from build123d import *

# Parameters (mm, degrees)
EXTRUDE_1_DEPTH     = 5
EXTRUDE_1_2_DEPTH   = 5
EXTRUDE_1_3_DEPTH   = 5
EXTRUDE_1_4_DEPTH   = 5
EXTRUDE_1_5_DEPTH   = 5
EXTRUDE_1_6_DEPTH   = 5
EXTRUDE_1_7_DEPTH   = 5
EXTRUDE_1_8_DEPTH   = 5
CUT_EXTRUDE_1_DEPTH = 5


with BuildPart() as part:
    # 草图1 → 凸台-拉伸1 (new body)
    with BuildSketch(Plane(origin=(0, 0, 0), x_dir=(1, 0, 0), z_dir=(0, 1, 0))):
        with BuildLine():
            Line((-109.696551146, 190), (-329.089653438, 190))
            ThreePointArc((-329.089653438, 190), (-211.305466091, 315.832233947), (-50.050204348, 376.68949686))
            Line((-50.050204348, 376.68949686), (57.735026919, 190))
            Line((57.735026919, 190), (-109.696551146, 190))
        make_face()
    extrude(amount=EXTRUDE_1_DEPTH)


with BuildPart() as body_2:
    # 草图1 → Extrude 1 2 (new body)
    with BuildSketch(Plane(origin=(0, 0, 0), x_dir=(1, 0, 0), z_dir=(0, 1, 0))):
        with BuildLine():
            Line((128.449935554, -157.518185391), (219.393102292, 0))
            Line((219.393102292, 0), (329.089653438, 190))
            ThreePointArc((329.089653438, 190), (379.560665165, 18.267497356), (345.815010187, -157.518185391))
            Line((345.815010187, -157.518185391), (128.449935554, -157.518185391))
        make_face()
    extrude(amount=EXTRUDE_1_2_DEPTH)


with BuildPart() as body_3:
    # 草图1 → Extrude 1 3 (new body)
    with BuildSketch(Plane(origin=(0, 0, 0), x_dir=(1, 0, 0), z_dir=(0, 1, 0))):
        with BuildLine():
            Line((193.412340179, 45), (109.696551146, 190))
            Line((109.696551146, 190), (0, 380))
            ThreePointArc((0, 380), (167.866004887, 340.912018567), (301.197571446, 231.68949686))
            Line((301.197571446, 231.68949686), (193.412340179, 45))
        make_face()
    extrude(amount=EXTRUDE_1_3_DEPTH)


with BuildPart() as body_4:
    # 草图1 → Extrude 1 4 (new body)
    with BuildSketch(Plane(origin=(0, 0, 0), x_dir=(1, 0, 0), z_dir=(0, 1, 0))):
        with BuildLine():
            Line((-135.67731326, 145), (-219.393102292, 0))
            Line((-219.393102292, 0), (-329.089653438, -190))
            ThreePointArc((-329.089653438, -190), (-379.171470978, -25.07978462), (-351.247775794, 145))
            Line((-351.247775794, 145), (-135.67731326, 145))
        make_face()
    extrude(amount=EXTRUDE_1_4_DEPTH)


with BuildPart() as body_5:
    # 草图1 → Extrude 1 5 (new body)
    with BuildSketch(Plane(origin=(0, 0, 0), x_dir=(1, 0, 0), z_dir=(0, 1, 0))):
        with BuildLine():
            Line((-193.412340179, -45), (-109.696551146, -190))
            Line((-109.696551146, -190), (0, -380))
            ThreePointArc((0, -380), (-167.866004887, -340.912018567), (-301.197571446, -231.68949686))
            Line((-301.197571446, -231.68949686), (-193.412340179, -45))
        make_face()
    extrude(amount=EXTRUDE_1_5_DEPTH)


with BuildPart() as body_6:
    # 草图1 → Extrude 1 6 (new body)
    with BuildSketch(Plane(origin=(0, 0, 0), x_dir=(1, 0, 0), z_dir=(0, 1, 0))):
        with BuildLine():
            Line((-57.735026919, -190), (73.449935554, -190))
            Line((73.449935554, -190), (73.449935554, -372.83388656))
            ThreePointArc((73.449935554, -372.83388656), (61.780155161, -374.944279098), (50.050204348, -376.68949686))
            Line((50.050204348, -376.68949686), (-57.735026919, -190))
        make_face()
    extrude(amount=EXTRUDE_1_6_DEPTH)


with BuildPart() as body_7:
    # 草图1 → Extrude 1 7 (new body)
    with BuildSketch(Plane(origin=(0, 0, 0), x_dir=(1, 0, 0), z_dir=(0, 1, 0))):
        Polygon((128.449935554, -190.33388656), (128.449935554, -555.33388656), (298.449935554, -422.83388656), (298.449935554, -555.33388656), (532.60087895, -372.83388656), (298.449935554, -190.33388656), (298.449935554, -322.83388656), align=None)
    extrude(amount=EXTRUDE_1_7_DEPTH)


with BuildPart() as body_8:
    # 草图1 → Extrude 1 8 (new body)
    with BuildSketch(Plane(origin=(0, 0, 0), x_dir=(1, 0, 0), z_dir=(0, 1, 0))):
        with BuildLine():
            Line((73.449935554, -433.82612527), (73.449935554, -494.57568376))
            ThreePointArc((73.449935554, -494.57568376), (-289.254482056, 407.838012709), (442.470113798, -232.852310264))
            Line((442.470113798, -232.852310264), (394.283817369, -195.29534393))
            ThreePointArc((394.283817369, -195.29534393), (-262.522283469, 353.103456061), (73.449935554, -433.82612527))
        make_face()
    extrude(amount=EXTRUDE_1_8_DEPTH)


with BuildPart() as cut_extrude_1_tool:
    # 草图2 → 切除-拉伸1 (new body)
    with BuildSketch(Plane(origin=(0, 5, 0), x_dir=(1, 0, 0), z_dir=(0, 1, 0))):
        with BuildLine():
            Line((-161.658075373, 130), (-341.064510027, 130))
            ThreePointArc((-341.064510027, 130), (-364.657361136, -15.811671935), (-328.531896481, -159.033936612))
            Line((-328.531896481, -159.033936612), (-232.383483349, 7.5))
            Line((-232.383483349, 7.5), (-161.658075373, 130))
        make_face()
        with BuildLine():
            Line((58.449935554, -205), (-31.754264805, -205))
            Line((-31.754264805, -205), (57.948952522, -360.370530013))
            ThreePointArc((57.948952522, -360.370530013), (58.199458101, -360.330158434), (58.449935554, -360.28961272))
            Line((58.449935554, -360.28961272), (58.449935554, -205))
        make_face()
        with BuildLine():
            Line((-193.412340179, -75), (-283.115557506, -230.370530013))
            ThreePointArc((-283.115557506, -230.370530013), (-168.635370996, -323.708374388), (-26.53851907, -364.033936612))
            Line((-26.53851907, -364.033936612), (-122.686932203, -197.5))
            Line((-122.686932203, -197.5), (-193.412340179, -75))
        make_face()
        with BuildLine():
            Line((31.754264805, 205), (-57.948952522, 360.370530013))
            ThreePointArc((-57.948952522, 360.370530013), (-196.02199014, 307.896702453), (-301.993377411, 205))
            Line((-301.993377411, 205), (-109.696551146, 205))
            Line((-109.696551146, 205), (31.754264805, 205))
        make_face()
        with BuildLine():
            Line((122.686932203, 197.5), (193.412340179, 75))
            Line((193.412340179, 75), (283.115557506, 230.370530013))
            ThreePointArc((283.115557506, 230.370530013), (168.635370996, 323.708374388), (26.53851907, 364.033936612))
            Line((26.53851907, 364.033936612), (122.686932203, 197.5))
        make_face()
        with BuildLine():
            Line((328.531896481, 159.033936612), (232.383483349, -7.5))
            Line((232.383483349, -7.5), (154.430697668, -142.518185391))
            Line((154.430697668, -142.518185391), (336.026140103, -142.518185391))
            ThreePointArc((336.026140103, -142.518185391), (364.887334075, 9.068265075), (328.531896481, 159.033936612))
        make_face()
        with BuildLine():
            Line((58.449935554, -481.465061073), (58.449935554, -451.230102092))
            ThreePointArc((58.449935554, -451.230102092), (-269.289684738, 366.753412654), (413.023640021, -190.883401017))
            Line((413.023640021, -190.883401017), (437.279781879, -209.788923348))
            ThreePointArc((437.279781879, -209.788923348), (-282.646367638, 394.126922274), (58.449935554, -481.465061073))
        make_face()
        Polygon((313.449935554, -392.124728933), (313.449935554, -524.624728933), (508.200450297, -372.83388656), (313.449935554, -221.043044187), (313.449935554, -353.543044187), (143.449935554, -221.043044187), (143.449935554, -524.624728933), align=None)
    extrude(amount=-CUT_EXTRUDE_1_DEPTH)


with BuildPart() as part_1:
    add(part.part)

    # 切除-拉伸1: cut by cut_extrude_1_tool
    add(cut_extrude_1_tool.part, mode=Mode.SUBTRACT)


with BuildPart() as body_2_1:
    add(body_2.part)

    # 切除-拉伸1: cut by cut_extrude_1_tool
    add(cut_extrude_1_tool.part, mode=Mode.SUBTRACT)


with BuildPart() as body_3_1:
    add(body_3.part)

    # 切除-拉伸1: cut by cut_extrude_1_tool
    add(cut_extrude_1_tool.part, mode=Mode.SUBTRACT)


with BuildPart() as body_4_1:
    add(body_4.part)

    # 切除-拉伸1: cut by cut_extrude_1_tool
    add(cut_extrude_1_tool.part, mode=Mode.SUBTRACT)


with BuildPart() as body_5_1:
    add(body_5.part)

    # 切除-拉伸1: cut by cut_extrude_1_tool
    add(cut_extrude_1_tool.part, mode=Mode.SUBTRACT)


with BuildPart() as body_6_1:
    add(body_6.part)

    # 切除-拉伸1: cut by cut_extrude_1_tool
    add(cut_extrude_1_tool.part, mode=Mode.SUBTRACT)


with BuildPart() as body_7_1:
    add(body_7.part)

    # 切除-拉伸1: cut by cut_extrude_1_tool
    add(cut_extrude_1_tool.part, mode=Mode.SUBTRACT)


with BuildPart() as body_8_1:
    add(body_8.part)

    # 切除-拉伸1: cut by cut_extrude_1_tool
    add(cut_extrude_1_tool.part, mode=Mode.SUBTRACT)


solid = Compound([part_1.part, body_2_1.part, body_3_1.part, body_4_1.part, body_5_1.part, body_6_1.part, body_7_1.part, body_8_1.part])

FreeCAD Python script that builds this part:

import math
import FreeCAD as App
import Part
import Sketcher

V = App.Vector
Q = App.Units.Quantity


def add_polygon(sketch, points):
    """Adds a closed chain of lines whose ends are joined by coincident constraints."""
    first, n = sketch.GeometryCount, len(points)
    for a, b in zip(points, points[1:] + points[:1]):
        sketch.addGeometry(Part.LineSegment(App.Vector(*a, 0), App.Vector(*b, 0)), False)
    for i in range(n):
        sketch.addConstraint(Sketcher.Constraint("Coincident", first + i, 2, first + (i + 1) % n, 1))

doc = App.newDocument("Part")
body = doc.addObject("PartDesign::Body", "Body")

# Sketch on XZ plane
sketch1 = body.newObject("Sketcher::SketchObject", "Sketch")
sketch1.AttachmentSupport = (doc.getObject("XZ_Plane"), [""])
sketch1.MapMode = "FlatFace"
sketch1.addGeometry([
    Part.ArcOfCircle(Part.Circle(V(0, 0, 0), V(0, 0, 1), 380), math.radians(-150), math.radians(-98)),
    Part.LineSegment(V(-329, -190, 0), V(58, -190, 0)),
    Part.LineSegment(V(58, -190, 0), V(-50, -377, 0)),
], False)
sketch1.addConstraint([
    Sketcher.Constraint("Coincident", 0, 1, 1, 1),
    Sketcher.Constraint("Coincident", 1, 2, 2, 1),
    Sketcher.Constraint("Coincident", 2, 2, 0, 2),
    Sketcher.Constraint("Horizontal", 1),
    Sketcher.Constraint("Coincident", 0, 3, -1, 1),
    Sketcher.Constraint("Radius", 0, 380.0),
    Sketcher.Constraint("Angle", 2, Q("-120 deg")),
    Sketcher.Constraint("DistanceY", 1, 2, -1, 1, 190.0),
    Sketcher.Constraint("DistanceX", 1, 1, 1, 2, 386.82468),
])
pad1 = body.newObject("PartDesign::Pad", "Pad")
pad1.Profile = sketch1
pad1.Length = 5
pad1.Reversed = True
body2 = doc.addObject("PartDesign::Body", "Body001")

# Sketch on XZ plane
sketch2 = body2.newObject("Sketcher::SketchObject", "Sketch001")
sketch2.AttachmentSupport = (doc.getObject("XZ_Plane001"), [""])
sketch2.MapMode = "FlatFace"
sketch2.addGeometry([
    Part.LineSegment(V(219, 0, 0), V(128, 158, 0)),
    Part.LineSegment(V(128, 158, 0), V(346, 158, 0)),
    Part.ArcOfCircle(Part.Circle(V(0, 0, 0), V(0, 0, 1), 380), math.radians(-30), math.radians(24)),
    Part.LineSegment(V(329, -190, 0), V(219, 0, 0)),
], False)
sketch2.addConstraint([
    Sketcher.Constraint("Coincident", 0, 2, 1, 1),
    Sketcher.Constraint("Coincident", 1, 2, 2, 2),
    Sketcher.Constraint("Coincident", 2, 1, 3, 1),
    Sketcher.Constraint("Coincident", 3, 2, 0, 1),
    Sketcher.Constraint("Horizontal", 1),
    Sketcher.Constraint("Coincident", 2, 3, -1, 1),
    Sketcher.Constraint("PointOnObject", 3, 2, -1),
    Sketcher.Constraint("Parallel", 0, 3),
    Sketcher.Constraint("Radius", 2, 380.0),
    Sketcher.Constraint("Angle", 0, Q("120 deg")),
    Sketcher.Constraint("DistanceX", 1, 1, 1, 2, 217.365075),
    Sketcher.Constraint("DistanceX", -1, 1, 1, 2, 345.81501),
])
pad2 = body2.newObject("PartDesign::Pad", "Pad001")
pad2.Profile = sketch2
pad2.Length = 5
pad2.Reversed = True
body3 = doc.addObject("PartDesign::Body", "Body002")

# Sketch on XZ plane
sketch3 = body3.newObject("Sketcher::SketchObject", "Sketch002")
sketch3.AttachmentSupport = (doc.getObject("XZ_Plane002"), [""])
sketch3.MapMode = "FlatFace"
sketch3.addGeometry([
    Part.LineSegment(V(110, -190, 0), V(193, -45, 0)),
    Part.LineSegment(V(193, -45, 0), V(301, -232, 0)),
    Part.ArcOfCircle(Part.Circle(V(0, 0, 0), V(0, 0, 1), 380), math.radians(-90), math.radians(-38)),
    Part.LineSegment(V(0, -380, 0), V(110, -190, 0)),
], False)
sketch3.addConstraint([
    Sketcher.Constraint("Coincident", 0, 2, 1, 1),
    Sketcher.Constraint("Coincident", 1, 2, 2, 2),
    Sketcher.Constraint("Coincident", 2, 1, 3, 1),
    Sketcher.Constraint("Coincident", 3, 2, 0, 1),
    Sketcher.Constraint("Coincident", 2, 3, -1, 1),
    Sketcher.Constraint("PointOnObject", 2, 1, -2),
    Sketcher.Constraint("Parallel", 0, 3),
    Sketcher.Constraint("Radius", 2, 380.0),
    Sketcher.Constraint("Angle", 0, Q("60 deg")),
    Sketcher.Constraint("Angle", 1, Q("-60 deg")),
    Sketcher.Constraint("DistanceY", 0, 2, -1, 1, 45.0),
    Sketcher.Constraint("DistanceY", 3, 2, -1, 1, 190.0),
])
pad3 = body3.newObject("PartDesign::Pad", "Pad002")
pad3.Profile = sketch3
pad3.Length = 5
pad3.Reversed = True
body4 = doc.addObject("PartDesign::Body", "Body003")

# Sketch on XZ plane
sketch4 = body4.newObject("Sketcher::SketchObject", "Sketch003")
sketch4.AttachmentSupport = (doc.getObject("XZ_Plane003"), [""])
sketch4.MapMode = "FlatFace"
sketch4.addGeometry([
    Part.LineSegment(V(-219, 0, 0), V(-136, -145, 0)),
    Part.LineSegment(V(-136, -145, 0), V(-351, -145, 0)),
    Part.ArcOfCircle(Part.Circle(V(0, 0, 0), V(0, 0, 1), 380), math.radians(150), math.radians(202)),
    Part.LineSegment(V(-329, 190, 0), V(-219, 0, 0)),
], False)
sketch4.addConstraint([
    Sketcher.Constraint("Coincident", 0, 2, 1, 1),
    Sketcher.Constraint("Coincident", 1, 2, 2, 2),
    Sketcher.Constraint("Coincident", 2, 1, 3, 1),
    Sketcher.Constraint("Coincident", 3, 2, 0, 1),
    Sketcher.Constraint("Horizontal", 1),
    Sketcher.Constraint("Coincident", 2, 3, -1, 1),
    Sketcher.Constraint("PointOnObject", 3, 2, -1),
    Sketcher.Constraint("Parallel", 0, 3),
    Sketcher.Constraint("Radius", 2, 380.0),
    Sketcher.Constraint("Angle", 0, Q("-60 deg")),
    Sketcher.Constraint("DistanceY", 0, 2, -1, 1, 145.0),
    Sketcher.Constraint("DistanceX", 1, 2, 1, 1, 215.570463),
])
pad4 = body4.newObject("PartDesign::Pad", "Pad003")
pad4.Profile = sketch4
pad4.Length = 5
pad4.Reversed = True
body5 = doc.addObject("PartDesign::Body", "Body004")

# Sketch on XZ plane
sketch5 = body5.newObject("Sketcher::SketchObject", "Sketch004")
sketch5.AttachmentSupport = (doc.getObject("XZ_Plane004"), [""])
sketch5.MapMode = "FlatFace"
sketch5.addGeometry([
    Part.LineSegment(V(-110, 190, 0), V(-193, 45, 0)),
    Part.LineSegment(V(-193, 45, 0), V(-301, 232, 0)),
    Part.ArcOfCircle(Part.Circle(V(0, 0, 0), V(0, 0, 1), 380), math.radians(90), math.radians(142)),
    Part.LineSegment(V(0, 380, 0), V(-110, 190, 0)),
], False)
sketch5.addConstraint([
    Sketcher.Constraint("Coincident", 0, 2, 1, 1),
    Sketcher.Constraint("Coincident", 1, 2, 2, 2),
    Sketcher.Constraint("Coincident", 2, 1, 3, 1),
    Sketcher.Constraint("Coincident", 3, 2, 0, 1),
    Sketcher.Constraint("Coincident", 2, 3, -1, 1),
    Sketcher.Constraint("PointOnObject", 2, 1, -2),
    Sketcher.Constraint("Parallel", 0, 3),
    Sketcher.Constraint("Radius", 2, 380.0),
    Sketcher.Constraint("Angle", 0, Q("-120 deg")),
    Sketcher.Constraint("Angle", 1, Q("120 deg")),
    Sketcher.Constraint("DistanceY", -1, 1, 0, 2, 45.0),
    Sketcher.Constraint("DistanceY", -1, 1, 3, 2, 190.0),
])
pad5 = body5.newObject("PartDesign::Pad", "Pad004")
pad5.Profile = sketch5
pad5.Length = 5
pad5.Reversed = True
body6 = doc.addObject("PartDesign::Body", "Body005")

# Sketch on XZ plane
sketch6 = body6.newObject("Sketcher::SketchObject", "Sketch005")
sketch6.AttachmentSupport = (doc.getObject("XZ_Plane005"), [""])
sketch6.MapMode = "FlatFace"
sketch6.addGeometry([
    Part.LineSegment(V(73, 190, 0), V(-58, 190, 0)),
    Part.LineSegment(V(-58, 190, 0), V(50, 377, 0)),
    Part.ArcOfCircle(Part.Circle(V(0, 0, 0), V(0, 0, 1), 380), math.radians(78.86), math.radians(82.43)),
    Part.LineSegment(V(73, 373, 0), V(73, 190, 0)),
], False)
sketch6.addConstraint([
    Sketcher.Constraint("Coincident", 0, 2, 1, 1),
    Sketcher.Constraint("Coincident", 1, 2, 2, 2),
    Sketcher.Constraint("Coincident", 2, 1, 3, 1),
    Sketcher.Constraint("Coincident", 3, 2, 0, 1),
    Sketcher.Constraint("Horizontal", 0),
    Sketcher.Constraint("Vertical", 3),
    Sketcher.Constraint("Coincident", 2, 3, -1, 1),
    Sketcher.Constraint("Radius", 2, 380.0),
    Sketcher.Constraint("Angle", 1, Q("60 deg")),
    Sketcher.Constraint("DistanceY", -1, 1, 0, 2, 190.0),
    Sketcher.Constraint("DistanceX", 0, 2, 0, 1, 131.184962),
    Sketcher.Constraint("DistanceY", 3, 2, 3, 1, 182.833887),
])
pad6 = body6.newObject("PartDesign::Pad", "Pad005")
pad6.Profile = sketch6
pad6.Length = 5
pad6.Reversed = True
body7 = doc.addObject("PartDesign::Body", "Body006")

# Sketch on XZ plane
sketch7 = body7.newObject("Sketcher::SketchObject", "Sketch006")
sketch7.AttachmentSupport = (doc.getObject("XZ_Plane006"), [""])
sketch7.MapMode = "FlatFace"
add_polygon(sketch7, [(128, 190), (128, 555), (298, 423), (298, 555), (533, 373), (298, 190), (298, 323)])  # lines 0-6
sketch7.addConstraint([
    Sketcher.Constraint("Vertical", 0),
    Sketcher.Constraint("Vertical", 2),
    Sketcher.Constraint("Vertical", 5),
    Sketcher.Constraint("Parallel", 1, 3),
    Sketcher.Constraint("Parallel", 4, 6),
    Sketcher.Constraint("Horizontal", 0, 2, 2, 2),
    Sketcher.Constraint("Horizontal", 4, 2, 6, 2),
    Sketcher.Constraint("Vertical", 2, 2, 4, 2),
    Sketcher.Constraint("Equal", 2, 5),
    Sketcher.Constraint("DistanceY", 0, 1, 0, 2, 365.0),
    Sketcher.Constraint("DistanceY", 2, 1, 2, 2, 132.5),
    Sketcher.Constraint("DistanceX", 0, 2, 1, 2, 170.0),
    Sketcher.Constraint("DistanceX", -1, 1, 3, 2, 532.600879),
    Sketcher.Constraint("DistanceY", -1, 1, 0, 2, 555.333887),
])
pad7 = body7.newObject("PartDesign::Pad", "Pad006")
pad7.Profile = sketch7
pad7.Length = 5
pad7.Reversed = True
body8 = doc.addObject("PartDesign::Body", "Body007")

# Sketch on XZ plane
sketch8 = body8.newObject("Sketcher::SketchObject", "Sketch007")
sketch8.AttachmentSupport = (doc.getObject("XZ_Plane007"), [""])
sketch8.MapMode = "FlatFace"
sketch8.addGeometry([
    Part.LineSegment(V(73.449936, 494.575684, 0), V(73.449936, 433.826125, 0)),
    Part.ArcOfCircle(Part.Circle(V(0, 0, 0), V(0, 0, 1), 440), math.radians(80.390532), math.radians(386.349981)),
    Part.LineSegment(V(394.283817, 195.295344, 0), V(442.470114, 232.85231, 0)),
    Part.ArcOfCircle(Part.Circle(V(0, 0, 0), V(0, 0, 1), 500), math.radians(81.552688), math.radians(387.755833)),
], False)
sketch8.addConstraint([
    Sketcher.Constraint("Coincident", 0, 2, 1, 1),
    Sketcher.Constraint("Coincident", 1, 2, 2, 1),
    Sketcher.Constraint("Coincident", 2, 2, 3, 2),
    Sketcher.Constraint("Coincident", 3, 1, 0, 1),
    Sketcher.Constraint("Vertical", 0),
    Sketcher.Constraint("Coincident", 1, 3, -1, 1),
    Sketcher.Constraint("Coincident", 3, 3, -1, 1),
    Sketcher.Constraint("Radius", 1, 440.0),
    Sketcher.Constraint("Radius", 3, 500.0),
    Sketcher.Constraint("DistanceY", 0, 2, 0, 1, 60.749558),
    Sketcher.Constraint("Distance", 2, 61.093738),
    Sketcher.Constraint("DistanceY", -1, 1, 2, 2, 232.85231),
])
pad8 = body8.newObject("PartDesign::Pad", "Pad007")
pad8.Profile = sketch8
pad8.Length = 5
pad8.Reversed = True
body9 = doc.addObject("PartDesign::Body", "Body008")
body9.AllowCompound = True

# Sketch on XZ plane
sketch9 = body9.newObject("Sketcher::SketchObject", "Sketch008")
sketch9.AttachmentSupport = (doc.getObject("XZ_Plane008"), [""])
sketch9.MapMode = "FlatFace"
sketch9.AttachmentOffset = App.Placement(V(0, 0, -5), App.Rotation())
sketch9.addGeometry(Part.LineSegment(V(-161.7, -130, 0), V(-341.1, -130, 0)), False)  # 0
sketch9.addGeometry(Part.ArcOfCircle(Part.Circle(V(0, 0, 0), V(0, 0, 1), 365), math.radians(154), math.radians(201)), False)  # 1
sketch9.addGeometry(Part.LineSegment(V(-328.5, 159, 0), V(-232.4, -7.5, 0)), False)  # 2
sketch9.addGeometry(Part.LineSegment(V(-232.4, -7.5, 0), V(-161.7, -130, 0)), False)  # 3
sketch9.addGeometry(Part.LineSegment(V(58.4, 205, 0), V(-31.8, 205, 0)), False)  # 4
sketch9.addGeometry(Part.LineSegment(V(-31.8, 205, 0), V(57.9, 360.4, 0)), False)  # 5
sketch9.addGeometry(Part.ArcOfCircle(Part.Circle(V(0, 0, 0), V(0, 0, 1), 365), math.radians(80.79), math.radians(80.86)), False)  # 6
sketch9.addGeometry(Part.LineSegment(V(58.4, 360.3, 0), V(58.4, 205, 0)), False)  # 7
sketch9.addGeometry(Part.LineSegment(V(-193.4, 75, 0), V(-283.1, 230.4, 0)), False)  # 8
sketch9.addGeometry(Part.ArcOfCircle(Part.Circle(V(0, 0, 0), V(0, 0, 1), 365), math.radians(94), math.radians(141)), False)  # 9
sketch9.addGeometry(Part.LineSegment(V(-26.5, 364, 0), V(-122.7, 197.5, 0)), False)  # 10
sketch9.addGeometry(Part.LineSegment(V(-122.7, 197.5, 0), V(-193.4, 75, 0)), False)  # 11
sketch9.addGeometry(Part.LineSegment(V(31.8, -205, 0), V(-57.9, -360.4, 0)), False)  # 12
sketch9.addGeometry(Part.ArcOfCircle(Part.Circle(V(0, 0, 0), V(0, 0, 1), 365), math.radians(-146), math.radians(-99)), False)  # 13
sketch9.addGeometry(Part.LineSegment(V(-302, -205, 0), V(31.8, -205, 0)), False)  # 14
sketch9.addGeometry(Part.LineSegment(V(122.7, -197.5, 0), V(193.4, -75, 0)), False)  # 15
sketch9.addGeometry(Part.LineSegment(V(193.4, -75, 0), V(283.1, -230.4, 0)), False)  # 16
sketch9.addGeometry(Part.ArcOfCircle(Part.Circle(V(0, 0, 0), V(0, 0, 1), 365), math.radians(-86), math.radians(-39)), False)  # 17
sketch9.addGeometry(Part.LineSegment(V(26.5, -364, 0), V(122.7, -197.5, 0)), False)  # 18
sketch9.addGeometry(Part.LineSegment(V(328.5, -159, 0), V(154.4, 142.5, 0)), False)  # 19
sketch9.addGeometry(Part.LineSegment(V(154.4, 142.5, 0), V(336, 142.5, 0)), False)  # 20
sketch9.addGeometry(Part.ArcOfCircle(Part.Circle(V(0, 0, 0), V(0, 0, 1), 365), math.radians(-26), math.radians(23)), False)  # 21
sketch9.addGeometry(Part.LineSegment(V(58.4, 481.5, 0), V(58.4, 451.2, 0)), False)  # 22
sketch9.addGeometry(Part.ArcOfCircle(Part.Circle(V(0, 0, 0), V(0, 0, 1), 455), math.radians(83), math.radians(385)), False)  # 23
sketch9.addGeometry(Part.LineSegment(V(413, 190.9, 0), V(437.3, 209.8, 0)), False)  # 24
sketch9.addGeometry(Part.ArcOfCircle(Part.Circle(V(0, 0, 0), V(0, 0, 1), 485), math.radians(83), math.radians(386)), False)  # 25
add_polygon(sketch9, [(313.4, 392.1), (313.4, 524.6), (508.2, 372.8), (313.4, 221), (313.4, 353.5), (143.4, 221), (143.4, 524.6)])  # lines 26-32
sketch9.addConstraint([
    Sketcher.Constraint("Coincident", 0, 2, 1, 2),
    Sketcher.Constraint("Coincident", 1, 1, 2, 1),
    Sketcher.Constraint("Coincident", 2, 2, 3, 1),
    Sketcher.Constraint("Coincident", 3, 2, 0, 1),
    Sketcher.Constraint("Coincident", 4, 2, 5, 1),
    Sketcher.Constraint("Coincident", 5, 2, 6, 2),
    Sketcher.Constraint("Coincident", 6, 1, 7, 1),
    Sketcher.Constraint("Coincident", 7, 2, 4, 1),
    Sketcher.Constraint("Coincident", 8, 2, 9, 2),
    Sketcher.Constraint("Coincident", 9, 1, 10, 1),
    Sketcher.Constraint("Coincident", 10, 2, 11, 1),
    Sketcher.Constraint("Coincident", 11, 2, 8, 1),
    Sketcher.Constraint("Coincident", 12, 2, 13, 2),
    Sketcher.Constraint("Coincident", 13, 1, 14, 1),
    Sketcher.Constraint("Coincident", 14, 2, 12, 1),
    Sketcher.Constraint("Coincident", 15, 2, 16, 1),
    Sketcher.Constraint("Coincident", 16, 2, 17, 2),
    Sketcher.Constraint("Coincident", 17, 1, 18, 1),
    Sketcher.Constraint("Coincident", 18, 2, 15, 1),
    Sketcher.Constraint("Coincident", 19, 2, 20, 1),
    Sketcher.Constraint("Coincident", 20, 2, 21, 2),
    Sketcher.Constraint("Coincident", 21, 1, 19, 1),
    Sketcher.Constraint("Coincident", 22, 2, 23, 1),
    Sketcher.Constraint("Coincident", 23, 2, 24, 1),
    Sketcher.Constraint("Coincident", 24, 2, 25, 2),
    Sketcher.Constraint("Coincident", 25, 1, 22, 1),
    Sketcher.Constraint("Horizontal", 0),
    Sketcher.Constraint("Horizontal", 4),
    Sketcher.Constraint("Vertical", 7),
    Sketcher.Constraint("Horizontal", 14),
    Sketcher.Constraint("Horizontal", 20),
    Sketcher.Constraint("Vertical", 22),
    Sketcher.Constraint("Vertical", 26),
    Sketcher.Constraint("Vertical", 29),
    Sketcher.Constraint("Vertical", 31),
    Sketcher.Constraint("Coincident", 1, 3, -1, 1),
    Sketcher.Constraint("Coincident", 9, 3, -1, 1),
    Sketcher.Constraint("Coincident", 13, 3, -1, 1),
    Sketcher.Constraint("Coincident", 17, 3, -1, 1),
    Sketcher.Constraint("Coincident", 21, 3, -1, 1),
    Sketcher.Constraint("Coincident", 23, 3, -1, 1),
    Sketcher.Constraint("Coincident", 25, 3, -1, 1),
    Sketcher.Constraint("Equal", 1, 9),
    Sketcher.Constraint("Equal", 9, 13),
    Sketcher.Constraint("Equal", 13, 17),
    Sketcher.Constraint("Equal", 17, 21),
    Sketcher.Constraint("Symmetric", 5, 2, 12, 2, -1, 1),
    Sketcher.Constraint("Symmetric", 4, 2, 14, 2, -1, 1),
    Sketcher.Constraint("Symmetric", 11, 2, 15, 2, -1, 1),
    Sketcher.Constraint("Symmetric", 10, 2, 18, 2, -1, 1),
    Sketcher.Constraint("Parallel", 2, 3),
    Sketcher.Constraint("Parallel", 3, 8),
    Sketcher.Constraint("Parallel", 5, 10),
    Sketcher.Constraint("Parallel", 10, 11),
    Sketcher.Constraint("Parallel", 8, 16),
    Sketcher.Constraint("Parallel", 15, 18),
    Sketcher.Constraint("Parallel", 16, 19),
    Sketcher.Constraint("Parallel", 24, 28),
    Sketcher.Constraint("Parallel", 28, 30),
    Sketcher.Constraint("Parallel", 27, 32),
    Sketcher.Constraint("Horizontal", 28, 2, 30, 2),
    Sketcher.Constraint("Horizontal", 26, 2, 31, 2),
    Sketcher.Constraint("Vertical", 7, 2, 22, 2),
    Sketcher.Constraint("Vertical", 26, 2, 28, 2),
    Sketcher.Constraint("Equal", 26, 29),
    Sketcher.Constraint("Equal", 5, 8),
    Sketcher.Constraint("Equal", 2, 10),
    Sketcher.Constraint("Equal", 3, 11),
    Sketcher.Constraint("Radius", 1, 365.0),
    Sketcher.Constraint("Radius", 23, 455.0),
    Sketcher.Constraint("Radius", 25, 485.0),
    Sketcher.Constraint("Angle", 2, Q("-60 deg")),
    Sketcher.Constraint("Angle", 5, Q("60 deg")),
    Sketcher.Constraint("DistanceY", 26, 1, 26, 2, 132.5),
    Sketcher.Constraint("DistanceY", 0, 2, -1, 1, 130.0),
    Sketcher.Constraint("DistanceY", -1, 1, 4, 2, 205.0),
    Sketcher.Constraint("DistanceY", -1, 1, 11, 2, 75.0),
    Sketcher.Constraint("DistanceX", 22, 2, 26, 2, 255.0),
    Sketcher.Constraint("DistanceX", 7, 2, 30, 2, 85.0),
    Sketcher.Constraint("DistanceY", 2, 2, -1, 1, 7.5),
    Sketcher.Constraint("Radius", 6, 364.999429),
    Sketcher.Constraint("DistanceX", 4, 2, 4, 1, 90.2042),
    Sketcher.Constraint("DistanceX", 15, 2, 20, 2, 142.6138),
    Sketcher.Constraint("DistanceY", 5, 2, 26, 2, 164.254199),
    Sketcher.Constraint("DistanceY", 20, 2, 27, 2, 230.315701),
    Sketcher.Constraint("Distance", 27, 246.917441),
    Sketcher.Constraint("DistanceX", 20, 1, 20, 2, 181.595442),
    Sketcher.Constraint("DistanceX", -1, 1, 24, 2, 437.279782),
    Sketcher.Constraint("DistanceX", 6, 3, 5, 2, 57.948862),
])
pad9 = body9.newObject("PartDesign::Pad", "Pad008")
pad9.Profile = sketch9
pad9.Length = 5
doc.recompute()

body10 = doc.addObject("PartDesign::Body", "Body009")
body10.BaseFeature = body9
boolean = body.newObject("PartDesign::Boolean", "Boolean")
boolean.Type = "Cut"
boolean.addObjects([body10])
doc.recompute()

body11 = doc.addObject("PartDesign::Body", "Body010")
body11.BaseFeature = body9
boolean2 = body2.newObject("PartDesign::Boolean", "Boolean001")
boolean2.Type = "Cut"
boolean2.addObjects([body11])
doc.recompute()

body12 = doc.addObject("PartDesign::Body", "Body011")
body12.BaseFeature = body9
boolean3 = body3.newObject("PartDesign::Boolean", "Boolean002")
boolean3.Type = "Cut"
boolean3.addObjects([body12])
doc.recompute()

body13 = doc.addObject("PartDesign::Body", "Body012")
body13.BaseFeature = body9
boolean4 = body4.newObject("PartDesign::Boolean", "Boolean003")
boolean4.Type = "Cut"
boolean4.addObjects([body13])
doc.recompute()

body14 = doc.addObject("PartDesign::Body", "Body013")
body14.BaseFeature = body9
boolean5 = body5.newObject("PartDesign::Boolean", "Boolean004")
boolean5.Type = "Cut"
boolean5.addObjects([body14])
doc.recompute()

body15 = doc.addObject("PartDesign::Body", "Body014")
body15.BaseFeature = body9
boolean6 = body6.newObject("PartDesign::Boolean", "Boolean005")
boolean6.Type = "Cut"
boolean6.addObjects([body15])
doc.recompute()

body16 = doc.addObject("PartDesign::Body", "Body015")
body16.BaseFeature = body9
boolean7 = body7.newObject("PartDesign::Boolean", "Boolean006")
boolean7.Type = "Cut"
boolean7.addObjects([body16])
doc.recompute()

boolean8 = body8.newObject("PartDesign::Boolean", "Boolean007")
boolean8.Type = "Cut"
boolean8.addObjects([body9])

doc.recompute()
